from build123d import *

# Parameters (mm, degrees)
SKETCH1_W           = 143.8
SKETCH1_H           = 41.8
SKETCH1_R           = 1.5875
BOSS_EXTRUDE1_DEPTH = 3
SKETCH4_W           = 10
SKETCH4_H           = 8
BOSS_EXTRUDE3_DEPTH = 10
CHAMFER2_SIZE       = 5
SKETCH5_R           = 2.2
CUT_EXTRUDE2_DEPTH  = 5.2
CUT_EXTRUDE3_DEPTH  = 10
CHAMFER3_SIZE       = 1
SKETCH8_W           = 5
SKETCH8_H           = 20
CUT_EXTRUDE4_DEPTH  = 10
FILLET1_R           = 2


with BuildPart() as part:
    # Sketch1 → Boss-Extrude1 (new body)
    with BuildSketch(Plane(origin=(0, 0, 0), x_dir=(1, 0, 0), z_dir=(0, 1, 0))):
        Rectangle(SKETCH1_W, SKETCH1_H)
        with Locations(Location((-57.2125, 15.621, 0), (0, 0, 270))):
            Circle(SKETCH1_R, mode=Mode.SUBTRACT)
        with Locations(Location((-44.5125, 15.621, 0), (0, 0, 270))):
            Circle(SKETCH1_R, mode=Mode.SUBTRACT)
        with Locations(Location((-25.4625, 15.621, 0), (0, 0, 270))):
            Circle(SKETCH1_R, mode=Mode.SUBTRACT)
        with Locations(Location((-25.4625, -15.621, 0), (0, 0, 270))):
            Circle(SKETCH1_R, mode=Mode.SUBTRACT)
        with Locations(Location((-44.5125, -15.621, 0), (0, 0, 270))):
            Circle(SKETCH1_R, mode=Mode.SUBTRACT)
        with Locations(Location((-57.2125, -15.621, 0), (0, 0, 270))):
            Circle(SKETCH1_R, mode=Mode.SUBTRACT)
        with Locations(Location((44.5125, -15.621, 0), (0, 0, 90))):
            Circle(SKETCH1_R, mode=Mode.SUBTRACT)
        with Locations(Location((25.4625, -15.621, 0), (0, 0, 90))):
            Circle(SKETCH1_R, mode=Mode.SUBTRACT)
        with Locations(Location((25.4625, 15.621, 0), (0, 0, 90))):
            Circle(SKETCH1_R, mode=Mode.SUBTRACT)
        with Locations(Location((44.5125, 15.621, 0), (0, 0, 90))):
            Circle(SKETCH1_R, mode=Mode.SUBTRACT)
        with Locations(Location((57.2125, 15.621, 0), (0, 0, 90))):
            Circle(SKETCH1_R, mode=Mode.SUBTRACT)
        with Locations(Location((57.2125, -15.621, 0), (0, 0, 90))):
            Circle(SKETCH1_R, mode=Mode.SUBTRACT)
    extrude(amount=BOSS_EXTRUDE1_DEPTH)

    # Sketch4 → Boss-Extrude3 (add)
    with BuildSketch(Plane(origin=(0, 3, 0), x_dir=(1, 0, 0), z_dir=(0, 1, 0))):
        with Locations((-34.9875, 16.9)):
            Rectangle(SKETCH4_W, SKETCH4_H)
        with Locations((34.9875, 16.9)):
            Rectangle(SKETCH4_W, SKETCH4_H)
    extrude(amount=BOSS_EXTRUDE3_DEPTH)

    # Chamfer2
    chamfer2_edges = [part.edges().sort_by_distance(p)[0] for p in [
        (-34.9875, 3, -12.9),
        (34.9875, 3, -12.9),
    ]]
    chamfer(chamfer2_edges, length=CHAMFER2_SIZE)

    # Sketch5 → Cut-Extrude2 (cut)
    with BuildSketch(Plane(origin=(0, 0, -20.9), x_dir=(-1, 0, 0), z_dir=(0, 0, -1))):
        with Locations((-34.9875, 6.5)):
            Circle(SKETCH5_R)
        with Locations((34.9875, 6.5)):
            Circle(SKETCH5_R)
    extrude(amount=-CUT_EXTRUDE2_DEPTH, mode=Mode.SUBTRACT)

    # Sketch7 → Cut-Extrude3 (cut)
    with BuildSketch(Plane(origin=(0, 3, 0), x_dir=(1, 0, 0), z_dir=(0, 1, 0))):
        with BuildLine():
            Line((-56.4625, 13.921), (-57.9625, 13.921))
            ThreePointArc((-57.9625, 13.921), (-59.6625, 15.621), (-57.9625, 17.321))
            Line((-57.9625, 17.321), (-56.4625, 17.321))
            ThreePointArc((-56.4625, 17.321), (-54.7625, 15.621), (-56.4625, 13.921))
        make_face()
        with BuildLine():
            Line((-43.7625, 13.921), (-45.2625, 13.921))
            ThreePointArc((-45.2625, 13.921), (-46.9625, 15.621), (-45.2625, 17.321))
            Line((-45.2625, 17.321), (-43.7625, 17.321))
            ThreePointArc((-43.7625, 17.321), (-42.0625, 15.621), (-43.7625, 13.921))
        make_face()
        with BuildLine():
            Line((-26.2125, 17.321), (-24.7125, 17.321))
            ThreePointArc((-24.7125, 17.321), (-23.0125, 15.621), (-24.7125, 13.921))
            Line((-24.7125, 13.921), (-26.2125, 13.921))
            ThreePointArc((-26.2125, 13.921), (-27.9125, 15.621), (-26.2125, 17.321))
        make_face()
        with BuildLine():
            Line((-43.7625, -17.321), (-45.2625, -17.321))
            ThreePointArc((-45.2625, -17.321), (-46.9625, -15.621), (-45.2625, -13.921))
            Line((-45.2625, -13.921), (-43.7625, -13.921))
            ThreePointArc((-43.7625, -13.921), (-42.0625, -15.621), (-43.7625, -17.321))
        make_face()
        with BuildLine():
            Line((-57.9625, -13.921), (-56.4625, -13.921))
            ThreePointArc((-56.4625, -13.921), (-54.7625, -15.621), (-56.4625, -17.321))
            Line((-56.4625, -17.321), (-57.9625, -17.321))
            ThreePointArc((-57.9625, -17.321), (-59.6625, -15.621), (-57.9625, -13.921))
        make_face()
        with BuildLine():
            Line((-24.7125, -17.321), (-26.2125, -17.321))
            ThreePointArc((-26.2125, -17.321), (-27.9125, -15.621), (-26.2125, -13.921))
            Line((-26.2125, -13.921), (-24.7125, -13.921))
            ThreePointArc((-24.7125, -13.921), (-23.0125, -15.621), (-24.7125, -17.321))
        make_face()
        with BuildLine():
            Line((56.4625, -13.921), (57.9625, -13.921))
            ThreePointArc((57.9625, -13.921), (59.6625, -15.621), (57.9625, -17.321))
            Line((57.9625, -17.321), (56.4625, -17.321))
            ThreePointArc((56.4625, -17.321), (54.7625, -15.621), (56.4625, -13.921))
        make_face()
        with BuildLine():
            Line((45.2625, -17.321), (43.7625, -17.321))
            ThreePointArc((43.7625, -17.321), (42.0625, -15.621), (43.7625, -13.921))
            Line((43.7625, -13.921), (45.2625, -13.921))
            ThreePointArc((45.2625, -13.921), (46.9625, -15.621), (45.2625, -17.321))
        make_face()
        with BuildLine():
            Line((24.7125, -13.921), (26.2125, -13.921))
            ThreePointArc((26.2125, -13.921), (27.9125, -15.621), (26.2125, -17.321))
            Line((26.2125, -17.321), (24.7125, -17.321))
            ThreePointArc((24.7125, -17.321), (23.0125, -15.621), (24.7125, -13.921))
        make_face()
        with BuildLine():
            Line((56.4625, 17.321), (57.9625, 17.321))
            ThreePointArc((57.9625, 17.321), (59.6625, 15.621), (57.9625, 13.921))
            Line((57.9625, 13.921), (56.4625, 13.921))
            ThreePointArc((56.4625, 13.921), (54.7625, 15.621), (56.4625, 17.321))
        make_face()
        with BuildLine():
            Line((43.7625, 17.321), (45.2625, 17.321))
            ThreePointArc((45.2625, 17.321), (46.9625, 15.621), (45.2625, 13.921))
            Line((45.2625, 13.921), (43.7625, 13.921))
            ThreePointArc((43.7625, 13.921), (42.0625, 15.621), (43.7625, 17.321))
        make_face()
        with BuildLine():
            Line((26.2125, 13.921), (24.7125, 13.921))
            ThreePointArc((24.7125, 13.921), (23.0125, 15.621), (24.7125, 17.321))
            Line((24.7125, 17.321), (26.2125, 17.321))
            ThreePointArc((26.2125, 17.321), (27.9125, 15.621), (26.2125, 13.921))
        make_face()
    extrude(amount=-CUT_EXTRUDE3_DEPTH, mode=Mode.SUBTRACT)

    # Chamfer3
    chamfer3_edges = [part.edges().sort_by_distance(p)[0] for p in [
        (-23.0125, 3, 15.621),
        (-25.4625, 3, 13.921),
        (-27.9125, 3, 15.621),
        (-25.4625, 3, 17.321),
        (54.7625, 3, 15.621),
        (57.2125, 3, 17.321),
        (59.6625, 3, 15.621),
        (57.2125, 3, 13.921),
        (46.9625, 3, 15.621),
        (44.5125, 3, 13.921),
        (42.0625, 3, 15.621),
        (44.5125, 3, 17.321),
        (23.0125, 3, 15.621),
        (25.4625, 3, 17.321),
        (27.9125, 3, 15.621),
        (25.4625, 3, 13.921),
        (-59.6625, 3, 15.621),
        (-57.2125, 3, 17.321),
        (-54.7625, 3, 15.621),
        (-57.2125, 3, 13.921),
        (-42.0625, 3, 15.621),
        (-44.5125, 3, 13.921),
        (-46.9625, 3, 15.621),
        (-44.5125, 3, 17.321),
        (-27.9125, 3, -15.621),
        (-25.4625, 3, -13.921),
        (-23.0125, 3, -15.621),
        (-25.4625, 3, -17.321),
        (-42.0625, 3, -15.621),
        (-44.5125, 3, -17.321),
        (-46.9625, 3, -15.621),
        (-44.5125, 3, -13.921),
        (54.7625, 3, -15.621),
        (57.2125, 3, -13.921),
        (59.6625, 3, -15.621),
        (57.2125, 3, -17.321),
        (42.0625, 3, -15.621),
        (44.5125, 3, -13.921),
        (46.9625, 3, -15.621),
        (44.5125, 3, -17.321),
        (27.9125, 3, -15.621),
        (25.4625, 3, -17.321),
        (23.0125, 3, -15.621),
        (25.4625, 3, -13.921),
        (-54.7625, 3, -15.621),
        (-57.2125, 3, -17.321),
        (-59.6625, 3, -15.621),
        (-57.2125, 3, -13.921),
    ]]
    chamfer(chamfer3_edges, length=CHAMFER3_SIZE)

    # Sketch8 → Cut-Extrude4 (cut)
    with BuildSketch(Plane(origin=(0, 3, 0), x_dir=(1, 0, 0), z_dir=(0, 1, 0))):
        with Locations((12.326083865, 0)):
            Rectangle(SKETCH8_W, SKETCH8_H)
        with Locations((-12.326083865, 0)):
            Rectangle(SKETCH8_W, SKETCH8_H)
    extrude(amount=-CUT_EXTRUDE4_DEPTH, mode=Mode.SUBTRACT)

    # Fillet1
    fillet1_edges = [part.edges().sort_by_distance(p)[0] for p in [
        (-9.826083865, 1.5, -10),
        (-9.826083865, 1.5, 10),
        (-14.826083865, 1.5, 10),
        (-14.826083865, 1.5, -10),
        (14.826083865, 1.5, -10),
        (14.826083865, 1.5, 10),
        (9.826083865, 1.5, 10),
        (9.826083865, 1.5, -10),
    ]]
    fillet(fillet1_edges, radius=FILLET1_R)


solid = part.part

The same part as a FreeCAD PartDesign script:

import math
import FreeCAD as App
import Part
import Sketcher


def edges_at(feature, points):
    """Names of the edges that pass closest to the given points."""
    edges = feature.Shape.Edges
    near = lambda p: min(range(len(edges)), key=lambda i: edges[i].distToShape(Part.Vertex(*p))[0])
    return sorted({f"Edge{near(p) + 1}" for p in points})


def add_polygon(sketch, points):
    """Adds a closed chain of lines whose ends are joined by coincident constraints."""
    first, n = sketch.GeometryCount, len(points)
    for a, b in zip(points, points[1:] + points[:1]):
        sketch.addGeometry(Part.LineSegment(App.Vector(*a, 0), App.Vector(*b, 0)), False)
    for i in range(n):
        sketch.addConstraint(Sketcher.Constraint("Coincident", first + i, 2, first + (i + 1) % n, 1))

doc = App.newDocument("Part")
body = doc.addObject("PartDesign::Body", "Body")

# Sketch on XZ plane
sketch1 = doc.addObject("Sketcher::SketchObject", "Sketch")
body.addObject(sketch1)
sketch1.AttachmentSupport = (doc.XZ_Plane, [""])
sketch1.MapMode = "FlatFace"
add_polygon(sketch1, [(-71.9, -20.9), (-71.9, 20.9), (71.9, 20.9), (71.9, -20.9)])  # lines 0-3
sketch1.addGeometry(Part.Circle(App.Vector(-57.2, 15.6, 0), App.Vector(0, 0, 1), 1.6), False)  # 4
sketch1.addGeometry(Part.Circle(App.Vector(-44.5, 15.6, 0), App.Vector(0, 0, 1), 1.6), False)  # 5
sketch1.addGeometry(Part.Circle(App.Vector(-25.5, 15.6, 0), App.Vector(0, 0, 1), 1.6), False)  # 6
sketch1.addGeometry(Part.Circle(App.Vector(25.5, 15.6, 0), App.Vector(0, 0, 1), 1.6), False)  # 7
sketch1.addGeometry(Part.Circle(App.Vector(44.5, 15.6, 0), App.Vector(0, 0, 1), 1.6), False)  # 8
sketch1.addGeometry(Part.Circle(App.Vector(57.2, 15.6, 0), App.Vector(0, 0, 1), 1.6), False)  # 9
sketch1.addGeometry(Part.Circle(App.Vector(-57.2, -15.6, 0), App.Vector(0, 0, 1), 1.6), False)  # 10
sketch1.addGeometry(Part.Circle(App.Vector(-44.5, -15.6, 0), App.Vector(0, 0, 1), 1.6), False)  # 11
sketch1.addGeometry(Part.Circle(App.Vector(-25.5, -15.6, 0), App.Vector(0, 0, 1), 1.6), False)  # 12
sketch1.addGeometry(Part.Circle(App.Vector(25.5, -15.6, 0), App.Vector(0, 0, 1), 1.6), False)  # 13
sketch1.addGeometry(Part.Circle(App.Vector(44.5, -15.6, 0), App.Vector(0, 0, 1), 1.6), False)  # 14
sketch1.addGeometry(Part.Circle(App.Vector(57.2, -15.6, 0), App.Vector(0, 0, 1), 1.6), False)  # 15
sketch1.addConstraint(Sketcher.Constraint("Vertical", 0))
sketch1.addConstraint(Sketcher.Constraint("Horizontal", 1))
sketch1.addConstraint(Sketcher.Constraint("Vertical", 2))
sketch1.addConstraint(Sketcher.Constraint("Horizontal", 3))
sketch1.addConstraint(Sketcher.Constraint("Equal", 4, 5))
sketch1.addConstraint(Sketcher.Constraint("Equal", 5, 6))
sketch1.addConstraint(Sketcher.Constraint("Equal", 6, 7))
sketch1.addConstraint(Sketcher.Constraint("Equal", 7, 8))
sketch1.addConstraint(Sketcher.Constraint("Equal", 8, 9))
sketch1.addConstraint(Sketcher.Constraint("Equal", 9, 10))
sketch1.addConstraint(Sketcher.Constraint("Equal", 10, 11))
sketch1.addConstraint(Sketcher.Constraint("Equal", 11, 12))
sketch1.addConstraint(Sketcher.Constraint("Equal", 12, 13))
sketch1.addConstraint(Sketcher.Constraint("Equal", 13, 14))
sketch1.addConstraint(Sketcher.Constraint("Equal", 14, 15))
sketch1.addConstraint(Sketcher.Constraint("Symmetric", 9, 3, 10, 3, -1, 1))
sketch1.addConstraint(Sketcher.Constraint("Symmetric", 8, 3, 11, 3, -1, 1))
sketch1.addConstraint(Sketcher.Constraint("Symmetric", 7, 3, 12, 3, -1, 1))
sketch1.addConstraint(Sketcher.Constraint("Symmetric", 6, 3, 13, 3, -1, 1))
sketch1.addConstraint(Sketcher.Constraint("Symmetric", 5, 3, 14, 3, -1, 1))
sketch1.addConstraint(Sketcher.Constraint("Symmetric", 4, 3, 15, 3, -1, 1))
sketch1.addConstraint(Sketcher.Constraint("Symmetric", 0, 2, 2, 2, -1, 1))
sketch1.addConstraint(Sketcher.Constraint("Symmetric", 6, 3, 7, 3, -2))
sketch1.addConstraint(Sketcher.Constraint("Symmetric", 5, 3, 8, 3, -2))
sketch1.addConstraint(Sketcher.Constraint("Symmetric", 4, 3, 9, 3, -2))
sketch1.addConstraint(Sketcher.Constraint("Horizontal", 4, 3, 5, 3))
sketch1.addConstraint(Sketcher.Constraint("Horizontal", 5, 3, 6, 3))
sketch1.addConstraint(Sketcher.Constraint("Diameter", 4, 3.175))
sketch1.addConstraint(Sketcher.Constraint("DistanceX", 1, 1, 1, 2, 143.8))
sketch1.addConstraint(Sketcher.Constraint("DistanceY", 0, 1, 0, 2, 41.8))
sketch1.addConstraint(Sketcher.Constraint("DistanceX", 4, 3, 5, 3, 12.7))
sketch1.addConstraint(Sketcher.Constraint("DistanceX", 5, 3, 6, 3, 19.05))
sketch1.addConstraint(Sketcher.Constraint("DistanceY", -1, 1, 4, 3, 15.621))
sketch1.addConstraint(Sketcher.Constraint("DistanceX", 6, 3, 7, 3, 50.925))
pad1 = doc.addObject("PartDesign::Pad", "Pad")
body.addObject(pad1)
pad1.Profile = sketch1
pad1.Length = 3
pad1.Reversed = True

# Sketch on XZ plane
sketch2 = doc.addObject("Sketcher::SketchObject", "Sketch001")
body.addObject(sketch2)
sketch2.AttachmentSupport = (doc.XZ_Plane, [""])
sketch2.MapMode = "FlatFace"
sketch2.AttachmentOffset = App.Placement(App.Vector(0, 0, -3), App.Rotation())
add_polygon(sketch2, [(-40, -21), (-40, -13), (-30, -13), (-30, -21)])  # lines 0-3
add_polygon(sketch2, [(30, -21), (30, -13), (40, -13), (40, -21)])  # lines 4-7
sketch2.addConstraint(Sketcher.Constraint("Vertical", 0))
sketch2.addConstraint(Sketcher.Constraint("Horizontal", 1))
sketch2.addConstraint(Sketcher.Constraint("Vertical", 2))
sketch2.addConstraint(Sketcher.Constraint("Horizontal", 3))
sketch2.addConstraint(Sketcher.Constraint("Vertical", 4))
sketch2.addConstraint(Sketcher.Constraint("Horizontal", 5))
sketch2.addConstraint(Sketcher.Constraint("Vertical", 6))
sketch2.addConstraint(Sketcher.Constraint("Horizontal", 7))
sketch2.addConstraint(Sketcher.Constraint("Symmetric", 1, 2, 4, 2, -2))
sketch2.addConstraint(Sketcher.Constraint("Symmetric", 3, 2, 6, 2, -2))
sketch2.addConstraint(Sketcher.Constraint("DistanceX", 1, 1, 1, 2, 10.0))
sketch2.addConstraint(Sketcher.Constraint("DistanceY", 0, 1, 0, 2, 8.0))
sketch2.addConstraint(Sketcher.Constraint("DistanceY", 0, 2, -1, 1, 12.9))
sketch2.addConstraint(Sketcher.Constraint("DistanceX", 1, 2, 4, 2, 59.975))
pad2 = doc.addObject("PartDesign::Pad", "Pad001")
body.addObject(pad2)
pad2.Profile = sketch2
pad2.Length = 10
pad2.Reversed = True
doc.recompute()

chamfer = doc.addObject("PartDesign::Chamfer", "Chamfer")
body.addObject(chamfer)
chamfer.Base = (pad2, edges_at(pad2, [(-34.987, 3, -12.9), (34.987, 3, -12.9)]))
chamfer.Size = 5

# Sketch on XY plane
sketch3 = doc.addObject("Sketcher::SketchObject", "Sketch002")
body.addObject(sketch3)
sketch3.AttachmentSupport = (doc.XY_Plane, [""])
sketch3.MapMode = "FlatFace"
sketch3.AttachmentOffset = App.Placement(App.Vector(0, 0, -20.9), App.Rotation())
sketch3.addGeometry(Part.Circle(App.Vector(35, 6.5, 0), App.Vector(0, 0, 1), 2.2), False)
sketch3.addGeometry(Part.Circle(App.Vector(-35, 6.5, 0), App.Vector(0, 0, 1), 2.2), False)
sketch3.addConstraint(Sketcher.Constraint("Equal", 0, 1))
sketch3.addConstraint(Sketcher.Constraint("Symmetric", 0, 3, 1, 3, -2))
sketch3.addConstraint(Sketcher.Constraint("Diameter", 0, 4.4))
sketch3.addConstraint(Sketcher.Constraint("DistanceY", -1, 1, 0, 3, 6.5))
sketch3.addConstraint(Sketcher.Constraint("DistanceX", 1, 3, 0, 3, 69.975))
pocket1 = doc.addObject("PartDesign::Pocket", "Pocket")
body.addObject(pocket1)
pocket1.Profile = sketch3
pocket1.Length = 5.2
pocket1.Reversed = True

# Sketch on XZ plane
sketch4 = doc.addObject("Sketcher::SketchObject", "Sketch003")
body.addObject(sketch4)
sketch4.AttachmentSupport = (doc.XZ_Plane, [""])
sketch4.MapMode = "FlatFace"
sketch4.AttachmentOffset = App.Placement(App.Vector(0, 0, -3), App.Rotation())
sketch4.addGeometry(Part.LineSegment(App.Vector(-58, -13.9, 0), App.Vector(-56.5, -13.9, 0)), False)
sketch4.addGeometry(Part.ArcOfCircle(Part.Circle(App.Vector(-56.5, -15.6, 0), App.Vector(0, 0, 1), 1.7), math.radians(-90), math.radians(90)), False)
sketch4.addGeometry(Part.LineSegment(App.Vector(-56.5, -17.3, 0), App.Vector(-58, -17.3, 0)), False)
sketch4.addGeometry(Part.ArcOfCircle(Part.Circle(App.Vector(-58, -15.6, 0), App.Vector(0, 0, 1), 1.7), math.radians(90), math.radians(270)), False)
sketch4.addGeometry(Part.LineSegment(App.Vector(-45.3, -13.9, 0), App.Vector(-43.8, -13.9, 0)), False)
sketch4.addGeometry(Part.ArcOfCircle(Part.Circle(App.Vector(-43.8, -15.6, 0), App.Vector(0, 0, 1), 1.7), math.radians(-90), math.radians(90)), False)
sketch4.addGeometry(Part.LineSegment(App.Vector(-43.8, -17.3, 0), App.Vector(-45.3, -17.3, 0)), False)
sketch4.addGeometry(Part.ArcOfCircle(Part.Circle(App.Vector(-45.3, -15.6, 0), App.Vector(0, 0, 1), 1.7), math.radians(90), math.radians(270)), False)
sketch4.addGeometry(Part.LineSegment(App.Vector(-24.7, -17.3, 0), App.Vector(-26.2, -17.3, 0)), False)
sketch4.addGeometry(Part.ArcOfCircle(Part.Circle(App.Vector(-26.2, -15.6, 0), App.Vector(0, 0, 1), 1.7), math.radians(90), math.radians(270)), False)
sketch4.addGeometry(Part.LineSegment(App.Vector(-26.2, -13.9, 0), App.Vector(-24.7, -13.9, 0)), False)
sketch4.addGeometry(Part.ArcOfCircle(Part.Circle(App.Vector(-24.7, -15.6, 0), App.Vector(0, 0, 1), 1.7), math.radians(-90), math.radians(90)), False)
sketch4.addGeometry(Part.LineSegment(App.Vector(-45.3, 17.3, 0), App.Vector(-43.8, 17.3, 0)), False)
sketch4.addGeometry(Part.ArcOfCircle(Part.Circle(App.Vector(-43.8, 15.6, 0), App.Vector(0, 0, 1), 1.7), math.radians(-90), math.radians(90)), False)
sketch4.addGeometry(Part.LineSegment(App.Vector(-43.8, 13.9, 0), App.Vector(-45.3, 13.9, 0)), False)
sketch4.addGeometry(Part.ArcOfCircle(Part.Circle(App.Vector(-45.3, 15.6, 0), App.Vector(0, 0, 1), 1.7), math.radians(90), math.radians(270)), False)
sketch4.addGeometry(Part.LineSegment(App.Vector(-56.5, 13.9, 0), App.Vector(-58, 13.9, 0)), False)
sketch4.addGeometry(Part.ArcOfCircle(Part.Circle(App.Vector(-58, 15.6, 0), App.Vector(0, 0, 1), 1.7), math.radians(90), math.radians(270)), False)
sketch4.addGeometry(Part.LineSegment(App.Vector(-58, 17.3, 0), App.Vector(-56.5, 17.3, 0)), False)
sketch4.addGeometry(Part.ArcOfCircle(Part.Circle(App.Vector(-56.5, 15.6, 0), App.Vector(0, 0, 1), 1.7), math.radians(-90), math.radians(90)), False)
sketch4.addGeometry(Part.LineSegment(App.Vector(-26.2, 17.3, 0), App.Vector(-24.7, 17.3, 0)), False)
sketch4.addGeometry(Part.ArcOfCircle(Part.Circle(App.Vector(-24.7, 15.6, 0), App.Vector(0, 0, 1), 1.7), math.radians(-90), math.radians(90)), False)
sketch4.addGeometry(Part.LineSegment(App.Vector(-24.7, 13.9, 0), App.Vector(-26.2, 13.9, 0)), False)
sketch4.addGeometry(Part.ArcOfCircle(Part.Circle(App.Vector(-26.2, 15.6, 0), App.Vector(0, 0, 1), 1.7), math.radians(90), math.radians(270)), False)
sketch4.addGeometry(Part.LineSegment(App.Vector(58, 13.9, 0), App.Vector(56.5, 13.9, 0)), False)
sketch4.addGeometry(Part.ArcOfCircle(Part.Circle(App.Vector(56.5, 15.6, 0), App.Vector(0, 0, 1), 1.7), math.radians(90), math.radians(270)), False)
sketch4.addGeometry(Part.LineSegment(App.Vector(56.5, 17.3, 0), App.Vector(58, 17.3, 0)), False)
sketch4.addGeometry(Part.ArcOfCircle(Part.Circle(App.Vector(58, 15.6, 0), App.Vector(0, 0, 1), 1.7), math.radians(-90), math.radians(90)), False)
sketch4.addGeometry(Part.LineSegment(App.Vector(43.8, 17.3, 0), App.Vector(45.3, 17.3, 0)), False)
sketch4.addGeometry(Part.ArcOfCircle(Part.Circle(App.Vector(45.3, 15.6, 0), App.Vector(0, 0, 1), 1.7), math.radians(-90), math.radians(90)), False)
sketch4.addGeometry(Part.LineSegment(App.Vector(45.3, 13.9, 0), App.Vector(43.8, 13.9, 0)), False)
sketch4.addGeometry(Part.ArcOfCircle(Part.Circle(App.Vector(43.8, 15.6, 0), App.Vector(0, 0, 1), 1.7), math.radians(90), math.radians(270)), False)
sketch4.addGeometry(Part.LineSegment(App.Vector(26.2, 13.9, 0), App.Vector(24.7, 13.9, 0)), False)
sketch4.addGeometry(Part.ArcOfCircle(Part.Circle(App.Vector(24.7, 15.6, 0), App.Vector(0, 0, 1), 1.7), math.radians(90), math.radians(270)), False)
sketch4.addGeometry(Part.LineSegment(App.Vector(24.7, 17.3, 0), App.Vector(26.2, 17.3, 0)), False)
sketch4.addGeometry(Part.ArcOfCircle(Part.Circle(App.Vector(26.2, 15.6, 0), App.Vector(0, 0, 1), 1.7), math.radians(-90), math.radians(90)), False)
sketch4.addGeometry(Part.LineSegment(App.Vector(58, -17.3, 0), App.Vector(56.5, -17.3, 0)), False)
sketch4.addGeometry(Part.ArcOfCircle(Part.Circle(App.Vector(56.5, -15.6, 0), App.Vector(0, 0, 1), 1.7), math.radians(90), math.radians(270)), False)
sketch4.addGeometry(Part.LineSegment(App.Vector(56.5, -13.9, 0), App.Vector(58, -13.9, 0)), False)
sketch4.addGeometry(Part.ArcOfCircle(Part.Circle(App.Vector(58, -15.6, 0), App.Vector(0, 0, 1), 1.7), math.radians(-90), math.radians(90)), False)
sketch4.addGeometry(Part.LineSegment(App.Vector(45.3, -17.3, 0), App.Vector(43.8, -17.3, 0)), False)
sketch4.addGeometry(Part.ArcOfCircle(Part.Circle(App.Vector(43.8, -15.6, 0), App.Vector(0, 0, 1), 1.7), math.radians(90), math.radians(270)), False)
sketch4.addGeometry(Part.LineSegment(App.Vector(43.8, -13.9, 0), App.Vector(45.3, -13.9, 0)), False)
sketch4.addGeometry(Part.ArcOfCircle(Part.Circle(App.Vector(45.3, -15.6, 0), App.Vector(0, 0, 1), 1.7), math.radians(-90), math.radians(90)), False)
sketch4.addGeometry(Part.LineSegment(App.Vector(24.7, -13.9, 0), App.Vector(26.2, -13.9, 0)), False)
sketch4.addGeometry(Part.ArcOfCircle(Part.Circle(App.Vector(26.2, -15.6, 0), App.Vector(0, 0, 1), 1.7), math.radians(-90), math.radians(90)), False)
sketch4.addGeometry(Part.LineSegment(App.Vector(26.2, -17.3, 0), App.Vector(24.7, -17.3, 0)), False)
sketch4.addGeometry(Part.ArcOfCircle(Part.Circle(App.Vector(24.7, -15.6, 0), App.Vector(0, 0, 1), 1.7), math.radians(90), math.radians(270)), False)
sketch4.addConstraint(Sketcher.Constraint("Tangent", 0, 2, 1, 2))
sketch4.addConstraint(Sketcher.Constraint("Tangent", 1, 1, 2, 1))
sketch4.addConstraint(Sketcher.Constraint("Tangent", 2, 2, 3, 2))
sketch4.addConstraint(Sketcher.Constraint("Tangent", 3, 1, 0, 1))
sketch4.addConstraint(Sketcher.Constraint("Tangent", 4, 2, 5, 2))
sketch4.addConstraint(Sketcher.Constraint("Tangent", 5, 1, 6, 1))
sketch4.addConstraint(Sketcher.Constraint("Tangent", 6, 2, 7, 2))
sketch4.addConstraint(Sketcher.Constraint("Tangent", 7, 1, 4, 1))
sketch4.addConstraint(Sketcher.Constraint("Tangent", 8, 2, 9, 2))
sketch4.addConstraint(Sketcher.Constraint("Tangent", 9, 1, 10, 1))
sketch4.addConstraint(Sketcher.Constraint("Tangent", 10, 2, 11, 2))
sketch4.addConstraint(Sketcher.Constraint("Tangent", 11, 1, 8, 1))
sketch4.addConstraint(Sketcher.Constraint("Tangent", 12, 2, 13, 2))
sketch4.addConstraint(Sketcher.Constraint("Tangent", 13, 1, 14, 1))
sketch4.addConstraint(Sketcher.Constraint("Tangent", 14, 2, 15, 2))
sketch4.addConstraint(Sketcher.Constraint("Tangent", 15, 1, 12, 1))
sketch4.addConstraint(Sketcher.Constraint("Tangent", 16, 2, 17, 2))
sketch4.addConstraint(Sketcher.Constraint("Tangent", 17, 1, 18, 1))
sketch4.addConstraint(Sketcher.Constraint("Tangent", 18, 2, 19, 2))
sketch4.addConstraint(Sketcher.Constraint("Tangent", 19, 1, 16, 1))
sketch4.addConstraint(Sketcher.Constraint("Tangent", 20, 2, 21, 2))
sketch4.addConstraint(Sketcher.Constraint("Tangent", 21, 1, 22, 1))
sketch4.addConstraint(Sketcher.Constraint("Tangent", 22, 2, 23, 2))
sketch4.addConstraint(Sketcher.Constraint("Tangent", 23, 1, 20, 1))
sketch4.addConstraint(Sketcher.Constraint("Tangent", 24, 2, 25, 2))
sketch4.addConstraint(Sketcher.Constraint("Tangent", 25, 1, 26, 1))
sketch4.addConstraint(Sketcher.Constraint("Tangent", 26, 2, 27, 2))
sketch4.addConstraint(Sketcher.Constraint("Tangent", 27, 1, 24, 1))
sketch4.addConstraint(Sketcher.Constraint("Tangent", 28, 2, 29, 2))
sketch4.addConstraint(Sketcher.Constraint("Tangent", 29, 1, 30, 1))
sketch4.addConstraint(Sketcher.Constraint("Tangent", 30, 2, 31, 2))
sketch4.addConstraint(Sketcher.Constraint("Tangent", 31, 1, 28, 1))
sketch4.addConstraint(Sketcher.Constraint("Tangent", 32, 2, 33, 2))
sketch4.addConstraint(Sketcher.Constraint("Tangent", 33, 1, 34, 1))
sketch4.addConstraint(Sketcher.Constraint("Tangent", 34, 2, 35, 2))
sketch4.addConstraint(Sketcher.Constraint("Tangent", 35, 1, 32, 1))
sketch4.addConstraint(Sketcher.Constraint("Tangent", 36, 2, 37, 2))
sketch4.addConstraint(Sketcher.Constraint("Tangent", 37, 1, 38, 1))
sketch4.addConstraint(Sketcher.Constraint("Tangent", 38, 2, 39, 2))
sketch4.addConstraint(Sketcher.Constraint("Tangent", 39, 1, 36, 1))
sketch4.addConstraint(Sketcher.Constraint("Tangent", 40, 2, 41, 2))
sketch4.addConstraint(Sketcher.Constraint("Tangent", 41, 1, 42, 1))
sketch4.addConstraint(Sketcher.Constraint("Tangent", 42, 2, 43, 2))
sketch4.addConstraint(Sketcher.Constraint("Tangent", 43, 1, 40, 1))
sketch4.addConstraint(Sketcher.Constraint("Tangent", 44, 2, 45, 2))
sketch4.addConstraint(Sketcher.Constraint("Tangent", 45, 1, 46, 1))
sketch4.addConstraint(Sketcher.Constraint("Tangent", 46, 2, 47, 2))
sketch4.addConstraint(Sketcher.Constraint("Tangent", 47, 1, 44, 1))
sketch4.addConstraint(Sketcher.Constraint("Horizontal", 0))
sketch4.addConstraint(Sketcher.Constraint("Horizontal", 2))
sketch4.addConstraint(Sketcher.Constraint("Horizontal", 4))
sketch4.addConstraint(Sketcher.Constraint("Horizontal", 6))
sketch4.addConstraint(Sketcher.Constraint("Horizontal", 8))
sketch4.addConstraint(Sketcher.Constraint("Horizontal", 10))
sketch4.addConstraint(Sketcher.Constraint("Horizontal", 12))
sketch4.addConstraint(Sketcher.Constraint("Horizontal", 14))
sketch4.addConstraint(Sketcher.Constraint("Horizontal", 16))
sketch4.addConstraint(Sketcher.Constraint("Horizontal", 18))
sketch4.addConstraint(Sketcher.Constraint("Horizontal", 20))
sketch4.addConstraint(Sketcher.Constraint("Horizontal", 22))
sketch4.addConstraint(Sketcher.Constraint("Horizontal", 24))
sketch4.addConstraint(Sketcher.Constraint("Horizontal", 26))
sketch4.addConstraint(Sketcher.Constraint("Horizontal", 28))
sketch4.addConstraint(Sketcher.Constraint("Horizontal", 30))
sketch4.addConstraint(Sketcher.Constraint("Horizontal", 32))
sketch4.addConstraint(Sketcher.Constraint("Horizontal", 34))
sketch4.addConstraint(Sketcher.Constraint("Horizontal", 36))
sketch4.addConstraint(Sketcher.Constraint("Horizontal", 38))
sketch4.addConstraint(Sketcher.Constraint("Horizontal", 40))
sketch4.addConstraint(Sketcher.Constraint("Horizontal", 42))
sketch4.addConstraint(Sketcher.Constraint("Horizontal", 44))
sketch4.addConstraint(Sketcher.Constraint("Horizontal", 46))
sketch4.addConstraint(Sketcher.Constraint("Equal", 3, 5))
sketch4.addConstraint(Sketcher.Constraint("Equal", 7, 9))
sketch4.addConstraint(Sketcher.Constraint("Equal", 11, 13))
sketch4.addConstraint(Sketcher.Constraint("Equal", 15, 17))
sketch4.addConstraint(Sketcher.Constraint("Equal", 19, 21))
sketch4.addConstraint(Sketcher.Constraint("Equal", 23, 25))
sketch4.addConstraint(Sketcher.Constraint("Equal", 27, 29))
sketch4.addConstraint(Sketcher.Constraint("Equal", 31, 33))
sketch4.addConstraint(Sketcher.Constraint("Equal", 35, 37))
sketch4.addConstraint(Sketcher.Constraint("Equal", 39, 41))
sketch4.addConstraint(Sketcher.Constraint("Equal", 43, 45))
sketch4.addConstraint(Sketcher.Constraint("Symmetric", 1, 3, 25, 3, -1, 1))
sketch4.addConstraint(Sketcher.Constraint("Symmetric", 7, 3, 29, 3, -1, 1))
sketch4.addConstraint(Sketcher.Constraint("Symmetric", 11, 3, 33, 3, -1, 1))
sketch4.addConstraint(Sketcher.Constraint("Symmetric", 19, 3, 37, 3, -1, 1))
sketch4.addConstraint(Sketcher.Constraint("Symmetric", 13, 3, 41, 3, -1, 1))
sketch4.addConstraint(Sketcher.Constraint("Symmetric", 23, 3, 45, 3, -1, 1))
sketch4.addConstraint(Sketcher.Constraint("Symmetric", 19, 3, 25, 3, -2))
sketch4.addConstraint(Sketcher.Constraint("Symmetric", 15, 3, 29, 3, -2))
sketch4.addConstraint(Sketcher.Constraint("Symmetric", 21, 3, 33, 3, -2))
sketch4.addConstraint(Sketcher.Constraint("Horizontal", 3, 3, 5, 3))
sketch4.addConstraint(Sketcher.Constraint("Horizontal", 7, 3, 9, 3))
sketch4.addConstraint(Sketcher.Constraint("Vertical", 5, 3, 13, 3))
sketch4.addConstraint(Sketcher.Constraint("Vertical", 3, 3, 17, 3))
sketch4.addConstraint(Sketcher.Constraint("Vertical", 9, 3, 23, 3))
sketch4.addConstraint(Sketcher.Constraint("Vertical", 27, 3, 39, 3))
sketch4.addConstraint(Sketcher.Constraint("Vertical", 31, 3, 41, 3))
sketch4.addConstraint(Sketcher.Constraint("Vertical", 29, 3, 43, 3))
sketch4.addConstraint(Sketcher.Constraint("Vertical", 35, 3, 45, 3))
sketch4.addConstraint(Sketcher.Constraint("Vertical", 33, 3, 47, 3))
sketch4.addConstraint(Sketcher.Constraint("Equal", 2, 4))
sketch4.addConstraint(Sketcher.Constraint("Equal", 6, 8))
sketch4.addConstraint(Sketcher.Constraint("Equal", 22, 24))
sketch4.addConstraint(Sketcher.Constraint("Radius", 1, 1.7))
sketch4.addConstraint(Sketcher.Constraint("DistanceX", 0, 1, 0, 2, 1.5))
sketch4.addConstraint(Sketcher.Constraint("DistanceY", 1, 3, -1, 1, 15.621))
sketch4.addConstraint(Sketcher.Constraint("DistanceX", 1, 3, -1, 1, 56.4625))
sketch4.addConstraint(Sketcher.Constraint("DistanceX", 5, 3, -1, 1, 43.7625))
sketch4.addConstraint(Sketcher.Constraint("DistanceX", 9, 3, -1, 1, 26.2125))
pocket2 = doc.addObject("PartDesign::Pocket", "Pocket001")
body.addObject(pocket2)
pocket2.Profile = sketch4
pocket2.Length = 10
pocket2.Reversed = True
doc.recompute()

chamfer2 = doc.addObject("PartDesign::Chamfer", "Chamfer001")
body.addObject(chamfer2)
chamfer2.Base = (pocket2, edges_at(pocket2, [
    (-23.012, 3, 15.621),
    (-25.462, 3, 13.921),
    (-27.913, 3, 15.621),
    (-25.462, 3, 17.321),
    (54.763, 3, 15.621),
    (57.212, 3, 17.321),
    (59.663, 3, 15.621),
    (57.212, 3, 13.921),
    (46.962, 3, 15.621),
    (44.513, 3, 13.921),
    (42.062, 3, 15.621),
    (44.513, 3, 17.321),
    (23.012, 3, 15.621),
    (25.462, 3, 17.321),
    (27.913, 3, 15.621),
    (25.462, 3, 13.921),
    (-59.663, 3, 15.621),
    (-57.212, 3, 17.321),
    (-54.763, 3, 15.621),
    (-57.212, 3, 13.921),
    (-42.062, 3, 15.621),
    (-44.513, 3, 13.921),
    (-46.962, 3, 15.621),
    (-44.513, 3, 17.321),
    (-27.913, 3, -15.621),
    (-25.462, 3, -13.921),
    (-23.012, 3, -15.621),
    (-25.462, 3, -17.321),
    (-42.062, 3, -15.621),
    (-44.513, 3, -17.321),
    (-46.962, 3, -15.621),
    (-44.513, 3, -13.921),
    (54.763, 3, -15.621),
    (57.212, 3, -13.921),
    (59.663, 3, -15.621),
    (57.212, 3, -17.321),
    (42.062, 3, -15.621),
    (44.513, 3, -13.921),
    (46.962, 3, -15.621),
    (44.513, 3, -17.321),
    (27.913, 3, -15.621),
    (25.462, 3, -17.321),
    (23.012, 3, -15.621),
    (25.462, 3, -13.921),
    (-54.763, 3, -15.621),
    (-57.212, 3, -17.321),
    (-59.663, 3, -15.621),
    (-57.212, 3, -13.921),
]))
chamfer2.Size = 1

# Sketch on XZ plane
sketch5 = doc.addObject("Sketcher::SketchObject", "Sketch004")
body.addObject(sketch5)
sketch5.AttachmentSupport = (doc.XZ_Plane, [""])
sketch5.MapMode = "FlatFace"
sketch5.AttachmentOffset = App.Placement(App.Vector(0, 0, -3), App.Rotation())
add_polygon(sketch5, [(10, -10), (10, 10), (15, 10), (15, -10)])  # lines 0-3
add_polygon(sketch5, [(-15, -10), (-15, 10), (-10, 10), (-10, -10)])  # lines 4-7
sketch5.addConstraint(Sketcher.Constraint("Vertical", 0))
sketch5.addConstraint(Sketcher.Constraint("Horizontal", 1))
sketch5.addConstraint(Sketcher.Constraint("Vertical", 2))
sketch5.addConstraint(Sketcher.Constraint("Horizontal", 3))
sketch5.addConstraint(Sketcher.Constraint("Vertical", 4))
sketch5.addConstraint(Sketcher.Constraint("Horizontal", 5))
sketch5.addConstraint(Sketcher.Constraint("Vertical", 6))
sketch5.addConstraint(Sketcher.Constraint("Horizontal", 7))
sketch5.addConstraint(Sketcher.Constraint("Symmetric", 2, 2, 4, 2, -1, 1))
sketch5.addConstraint(Sketcher.Constraint("Symmetric", 0, 2, 6, 2, -1, 1))
sketch5.addConstraint(Sketcher.Constraint("Horizontal", 1, 2, 4, 2))
sketch5.addConstraint(Sketcher.Constraint("DistanceX", 1, 1, 1, 2, 5.0))
sketch5.addConstraint(Sketcher.Constraint("DistanceY", 0, 1, 0, 2, 20.0))
sketch5.addConstraint(Sketcher.Constraint("DistanceX", -1, 1, 0, 2, 9.826084))
pocket3 = doc.addObject("PartDesign::Pocket", "Pocket002")
body.addObject(pocket3)
pocket3.Profile = sketch5
pocket3.Length = 10
pocket3.Reversed = True
doc.recompute()

fillet = doc.addObject("PartDesign::Fillet", "Fillet")
body.addObject(fillet)
fillet.Base = (pocket3, edges_at(pocket3, [
    (-9.826, 1.5, -10),
    (-9.826, 1.5, 10),
    (-14.826, 1.5, 10),
    (-14.826, 1.5, -10),
    (14.826, 1.5, -10),
    (14.826, 1.5, 10),
    (9.826, 1.5, 10),
    (9.826, 1.5, -10),
]))
fillet.Radius = 2

doc.recompute()
